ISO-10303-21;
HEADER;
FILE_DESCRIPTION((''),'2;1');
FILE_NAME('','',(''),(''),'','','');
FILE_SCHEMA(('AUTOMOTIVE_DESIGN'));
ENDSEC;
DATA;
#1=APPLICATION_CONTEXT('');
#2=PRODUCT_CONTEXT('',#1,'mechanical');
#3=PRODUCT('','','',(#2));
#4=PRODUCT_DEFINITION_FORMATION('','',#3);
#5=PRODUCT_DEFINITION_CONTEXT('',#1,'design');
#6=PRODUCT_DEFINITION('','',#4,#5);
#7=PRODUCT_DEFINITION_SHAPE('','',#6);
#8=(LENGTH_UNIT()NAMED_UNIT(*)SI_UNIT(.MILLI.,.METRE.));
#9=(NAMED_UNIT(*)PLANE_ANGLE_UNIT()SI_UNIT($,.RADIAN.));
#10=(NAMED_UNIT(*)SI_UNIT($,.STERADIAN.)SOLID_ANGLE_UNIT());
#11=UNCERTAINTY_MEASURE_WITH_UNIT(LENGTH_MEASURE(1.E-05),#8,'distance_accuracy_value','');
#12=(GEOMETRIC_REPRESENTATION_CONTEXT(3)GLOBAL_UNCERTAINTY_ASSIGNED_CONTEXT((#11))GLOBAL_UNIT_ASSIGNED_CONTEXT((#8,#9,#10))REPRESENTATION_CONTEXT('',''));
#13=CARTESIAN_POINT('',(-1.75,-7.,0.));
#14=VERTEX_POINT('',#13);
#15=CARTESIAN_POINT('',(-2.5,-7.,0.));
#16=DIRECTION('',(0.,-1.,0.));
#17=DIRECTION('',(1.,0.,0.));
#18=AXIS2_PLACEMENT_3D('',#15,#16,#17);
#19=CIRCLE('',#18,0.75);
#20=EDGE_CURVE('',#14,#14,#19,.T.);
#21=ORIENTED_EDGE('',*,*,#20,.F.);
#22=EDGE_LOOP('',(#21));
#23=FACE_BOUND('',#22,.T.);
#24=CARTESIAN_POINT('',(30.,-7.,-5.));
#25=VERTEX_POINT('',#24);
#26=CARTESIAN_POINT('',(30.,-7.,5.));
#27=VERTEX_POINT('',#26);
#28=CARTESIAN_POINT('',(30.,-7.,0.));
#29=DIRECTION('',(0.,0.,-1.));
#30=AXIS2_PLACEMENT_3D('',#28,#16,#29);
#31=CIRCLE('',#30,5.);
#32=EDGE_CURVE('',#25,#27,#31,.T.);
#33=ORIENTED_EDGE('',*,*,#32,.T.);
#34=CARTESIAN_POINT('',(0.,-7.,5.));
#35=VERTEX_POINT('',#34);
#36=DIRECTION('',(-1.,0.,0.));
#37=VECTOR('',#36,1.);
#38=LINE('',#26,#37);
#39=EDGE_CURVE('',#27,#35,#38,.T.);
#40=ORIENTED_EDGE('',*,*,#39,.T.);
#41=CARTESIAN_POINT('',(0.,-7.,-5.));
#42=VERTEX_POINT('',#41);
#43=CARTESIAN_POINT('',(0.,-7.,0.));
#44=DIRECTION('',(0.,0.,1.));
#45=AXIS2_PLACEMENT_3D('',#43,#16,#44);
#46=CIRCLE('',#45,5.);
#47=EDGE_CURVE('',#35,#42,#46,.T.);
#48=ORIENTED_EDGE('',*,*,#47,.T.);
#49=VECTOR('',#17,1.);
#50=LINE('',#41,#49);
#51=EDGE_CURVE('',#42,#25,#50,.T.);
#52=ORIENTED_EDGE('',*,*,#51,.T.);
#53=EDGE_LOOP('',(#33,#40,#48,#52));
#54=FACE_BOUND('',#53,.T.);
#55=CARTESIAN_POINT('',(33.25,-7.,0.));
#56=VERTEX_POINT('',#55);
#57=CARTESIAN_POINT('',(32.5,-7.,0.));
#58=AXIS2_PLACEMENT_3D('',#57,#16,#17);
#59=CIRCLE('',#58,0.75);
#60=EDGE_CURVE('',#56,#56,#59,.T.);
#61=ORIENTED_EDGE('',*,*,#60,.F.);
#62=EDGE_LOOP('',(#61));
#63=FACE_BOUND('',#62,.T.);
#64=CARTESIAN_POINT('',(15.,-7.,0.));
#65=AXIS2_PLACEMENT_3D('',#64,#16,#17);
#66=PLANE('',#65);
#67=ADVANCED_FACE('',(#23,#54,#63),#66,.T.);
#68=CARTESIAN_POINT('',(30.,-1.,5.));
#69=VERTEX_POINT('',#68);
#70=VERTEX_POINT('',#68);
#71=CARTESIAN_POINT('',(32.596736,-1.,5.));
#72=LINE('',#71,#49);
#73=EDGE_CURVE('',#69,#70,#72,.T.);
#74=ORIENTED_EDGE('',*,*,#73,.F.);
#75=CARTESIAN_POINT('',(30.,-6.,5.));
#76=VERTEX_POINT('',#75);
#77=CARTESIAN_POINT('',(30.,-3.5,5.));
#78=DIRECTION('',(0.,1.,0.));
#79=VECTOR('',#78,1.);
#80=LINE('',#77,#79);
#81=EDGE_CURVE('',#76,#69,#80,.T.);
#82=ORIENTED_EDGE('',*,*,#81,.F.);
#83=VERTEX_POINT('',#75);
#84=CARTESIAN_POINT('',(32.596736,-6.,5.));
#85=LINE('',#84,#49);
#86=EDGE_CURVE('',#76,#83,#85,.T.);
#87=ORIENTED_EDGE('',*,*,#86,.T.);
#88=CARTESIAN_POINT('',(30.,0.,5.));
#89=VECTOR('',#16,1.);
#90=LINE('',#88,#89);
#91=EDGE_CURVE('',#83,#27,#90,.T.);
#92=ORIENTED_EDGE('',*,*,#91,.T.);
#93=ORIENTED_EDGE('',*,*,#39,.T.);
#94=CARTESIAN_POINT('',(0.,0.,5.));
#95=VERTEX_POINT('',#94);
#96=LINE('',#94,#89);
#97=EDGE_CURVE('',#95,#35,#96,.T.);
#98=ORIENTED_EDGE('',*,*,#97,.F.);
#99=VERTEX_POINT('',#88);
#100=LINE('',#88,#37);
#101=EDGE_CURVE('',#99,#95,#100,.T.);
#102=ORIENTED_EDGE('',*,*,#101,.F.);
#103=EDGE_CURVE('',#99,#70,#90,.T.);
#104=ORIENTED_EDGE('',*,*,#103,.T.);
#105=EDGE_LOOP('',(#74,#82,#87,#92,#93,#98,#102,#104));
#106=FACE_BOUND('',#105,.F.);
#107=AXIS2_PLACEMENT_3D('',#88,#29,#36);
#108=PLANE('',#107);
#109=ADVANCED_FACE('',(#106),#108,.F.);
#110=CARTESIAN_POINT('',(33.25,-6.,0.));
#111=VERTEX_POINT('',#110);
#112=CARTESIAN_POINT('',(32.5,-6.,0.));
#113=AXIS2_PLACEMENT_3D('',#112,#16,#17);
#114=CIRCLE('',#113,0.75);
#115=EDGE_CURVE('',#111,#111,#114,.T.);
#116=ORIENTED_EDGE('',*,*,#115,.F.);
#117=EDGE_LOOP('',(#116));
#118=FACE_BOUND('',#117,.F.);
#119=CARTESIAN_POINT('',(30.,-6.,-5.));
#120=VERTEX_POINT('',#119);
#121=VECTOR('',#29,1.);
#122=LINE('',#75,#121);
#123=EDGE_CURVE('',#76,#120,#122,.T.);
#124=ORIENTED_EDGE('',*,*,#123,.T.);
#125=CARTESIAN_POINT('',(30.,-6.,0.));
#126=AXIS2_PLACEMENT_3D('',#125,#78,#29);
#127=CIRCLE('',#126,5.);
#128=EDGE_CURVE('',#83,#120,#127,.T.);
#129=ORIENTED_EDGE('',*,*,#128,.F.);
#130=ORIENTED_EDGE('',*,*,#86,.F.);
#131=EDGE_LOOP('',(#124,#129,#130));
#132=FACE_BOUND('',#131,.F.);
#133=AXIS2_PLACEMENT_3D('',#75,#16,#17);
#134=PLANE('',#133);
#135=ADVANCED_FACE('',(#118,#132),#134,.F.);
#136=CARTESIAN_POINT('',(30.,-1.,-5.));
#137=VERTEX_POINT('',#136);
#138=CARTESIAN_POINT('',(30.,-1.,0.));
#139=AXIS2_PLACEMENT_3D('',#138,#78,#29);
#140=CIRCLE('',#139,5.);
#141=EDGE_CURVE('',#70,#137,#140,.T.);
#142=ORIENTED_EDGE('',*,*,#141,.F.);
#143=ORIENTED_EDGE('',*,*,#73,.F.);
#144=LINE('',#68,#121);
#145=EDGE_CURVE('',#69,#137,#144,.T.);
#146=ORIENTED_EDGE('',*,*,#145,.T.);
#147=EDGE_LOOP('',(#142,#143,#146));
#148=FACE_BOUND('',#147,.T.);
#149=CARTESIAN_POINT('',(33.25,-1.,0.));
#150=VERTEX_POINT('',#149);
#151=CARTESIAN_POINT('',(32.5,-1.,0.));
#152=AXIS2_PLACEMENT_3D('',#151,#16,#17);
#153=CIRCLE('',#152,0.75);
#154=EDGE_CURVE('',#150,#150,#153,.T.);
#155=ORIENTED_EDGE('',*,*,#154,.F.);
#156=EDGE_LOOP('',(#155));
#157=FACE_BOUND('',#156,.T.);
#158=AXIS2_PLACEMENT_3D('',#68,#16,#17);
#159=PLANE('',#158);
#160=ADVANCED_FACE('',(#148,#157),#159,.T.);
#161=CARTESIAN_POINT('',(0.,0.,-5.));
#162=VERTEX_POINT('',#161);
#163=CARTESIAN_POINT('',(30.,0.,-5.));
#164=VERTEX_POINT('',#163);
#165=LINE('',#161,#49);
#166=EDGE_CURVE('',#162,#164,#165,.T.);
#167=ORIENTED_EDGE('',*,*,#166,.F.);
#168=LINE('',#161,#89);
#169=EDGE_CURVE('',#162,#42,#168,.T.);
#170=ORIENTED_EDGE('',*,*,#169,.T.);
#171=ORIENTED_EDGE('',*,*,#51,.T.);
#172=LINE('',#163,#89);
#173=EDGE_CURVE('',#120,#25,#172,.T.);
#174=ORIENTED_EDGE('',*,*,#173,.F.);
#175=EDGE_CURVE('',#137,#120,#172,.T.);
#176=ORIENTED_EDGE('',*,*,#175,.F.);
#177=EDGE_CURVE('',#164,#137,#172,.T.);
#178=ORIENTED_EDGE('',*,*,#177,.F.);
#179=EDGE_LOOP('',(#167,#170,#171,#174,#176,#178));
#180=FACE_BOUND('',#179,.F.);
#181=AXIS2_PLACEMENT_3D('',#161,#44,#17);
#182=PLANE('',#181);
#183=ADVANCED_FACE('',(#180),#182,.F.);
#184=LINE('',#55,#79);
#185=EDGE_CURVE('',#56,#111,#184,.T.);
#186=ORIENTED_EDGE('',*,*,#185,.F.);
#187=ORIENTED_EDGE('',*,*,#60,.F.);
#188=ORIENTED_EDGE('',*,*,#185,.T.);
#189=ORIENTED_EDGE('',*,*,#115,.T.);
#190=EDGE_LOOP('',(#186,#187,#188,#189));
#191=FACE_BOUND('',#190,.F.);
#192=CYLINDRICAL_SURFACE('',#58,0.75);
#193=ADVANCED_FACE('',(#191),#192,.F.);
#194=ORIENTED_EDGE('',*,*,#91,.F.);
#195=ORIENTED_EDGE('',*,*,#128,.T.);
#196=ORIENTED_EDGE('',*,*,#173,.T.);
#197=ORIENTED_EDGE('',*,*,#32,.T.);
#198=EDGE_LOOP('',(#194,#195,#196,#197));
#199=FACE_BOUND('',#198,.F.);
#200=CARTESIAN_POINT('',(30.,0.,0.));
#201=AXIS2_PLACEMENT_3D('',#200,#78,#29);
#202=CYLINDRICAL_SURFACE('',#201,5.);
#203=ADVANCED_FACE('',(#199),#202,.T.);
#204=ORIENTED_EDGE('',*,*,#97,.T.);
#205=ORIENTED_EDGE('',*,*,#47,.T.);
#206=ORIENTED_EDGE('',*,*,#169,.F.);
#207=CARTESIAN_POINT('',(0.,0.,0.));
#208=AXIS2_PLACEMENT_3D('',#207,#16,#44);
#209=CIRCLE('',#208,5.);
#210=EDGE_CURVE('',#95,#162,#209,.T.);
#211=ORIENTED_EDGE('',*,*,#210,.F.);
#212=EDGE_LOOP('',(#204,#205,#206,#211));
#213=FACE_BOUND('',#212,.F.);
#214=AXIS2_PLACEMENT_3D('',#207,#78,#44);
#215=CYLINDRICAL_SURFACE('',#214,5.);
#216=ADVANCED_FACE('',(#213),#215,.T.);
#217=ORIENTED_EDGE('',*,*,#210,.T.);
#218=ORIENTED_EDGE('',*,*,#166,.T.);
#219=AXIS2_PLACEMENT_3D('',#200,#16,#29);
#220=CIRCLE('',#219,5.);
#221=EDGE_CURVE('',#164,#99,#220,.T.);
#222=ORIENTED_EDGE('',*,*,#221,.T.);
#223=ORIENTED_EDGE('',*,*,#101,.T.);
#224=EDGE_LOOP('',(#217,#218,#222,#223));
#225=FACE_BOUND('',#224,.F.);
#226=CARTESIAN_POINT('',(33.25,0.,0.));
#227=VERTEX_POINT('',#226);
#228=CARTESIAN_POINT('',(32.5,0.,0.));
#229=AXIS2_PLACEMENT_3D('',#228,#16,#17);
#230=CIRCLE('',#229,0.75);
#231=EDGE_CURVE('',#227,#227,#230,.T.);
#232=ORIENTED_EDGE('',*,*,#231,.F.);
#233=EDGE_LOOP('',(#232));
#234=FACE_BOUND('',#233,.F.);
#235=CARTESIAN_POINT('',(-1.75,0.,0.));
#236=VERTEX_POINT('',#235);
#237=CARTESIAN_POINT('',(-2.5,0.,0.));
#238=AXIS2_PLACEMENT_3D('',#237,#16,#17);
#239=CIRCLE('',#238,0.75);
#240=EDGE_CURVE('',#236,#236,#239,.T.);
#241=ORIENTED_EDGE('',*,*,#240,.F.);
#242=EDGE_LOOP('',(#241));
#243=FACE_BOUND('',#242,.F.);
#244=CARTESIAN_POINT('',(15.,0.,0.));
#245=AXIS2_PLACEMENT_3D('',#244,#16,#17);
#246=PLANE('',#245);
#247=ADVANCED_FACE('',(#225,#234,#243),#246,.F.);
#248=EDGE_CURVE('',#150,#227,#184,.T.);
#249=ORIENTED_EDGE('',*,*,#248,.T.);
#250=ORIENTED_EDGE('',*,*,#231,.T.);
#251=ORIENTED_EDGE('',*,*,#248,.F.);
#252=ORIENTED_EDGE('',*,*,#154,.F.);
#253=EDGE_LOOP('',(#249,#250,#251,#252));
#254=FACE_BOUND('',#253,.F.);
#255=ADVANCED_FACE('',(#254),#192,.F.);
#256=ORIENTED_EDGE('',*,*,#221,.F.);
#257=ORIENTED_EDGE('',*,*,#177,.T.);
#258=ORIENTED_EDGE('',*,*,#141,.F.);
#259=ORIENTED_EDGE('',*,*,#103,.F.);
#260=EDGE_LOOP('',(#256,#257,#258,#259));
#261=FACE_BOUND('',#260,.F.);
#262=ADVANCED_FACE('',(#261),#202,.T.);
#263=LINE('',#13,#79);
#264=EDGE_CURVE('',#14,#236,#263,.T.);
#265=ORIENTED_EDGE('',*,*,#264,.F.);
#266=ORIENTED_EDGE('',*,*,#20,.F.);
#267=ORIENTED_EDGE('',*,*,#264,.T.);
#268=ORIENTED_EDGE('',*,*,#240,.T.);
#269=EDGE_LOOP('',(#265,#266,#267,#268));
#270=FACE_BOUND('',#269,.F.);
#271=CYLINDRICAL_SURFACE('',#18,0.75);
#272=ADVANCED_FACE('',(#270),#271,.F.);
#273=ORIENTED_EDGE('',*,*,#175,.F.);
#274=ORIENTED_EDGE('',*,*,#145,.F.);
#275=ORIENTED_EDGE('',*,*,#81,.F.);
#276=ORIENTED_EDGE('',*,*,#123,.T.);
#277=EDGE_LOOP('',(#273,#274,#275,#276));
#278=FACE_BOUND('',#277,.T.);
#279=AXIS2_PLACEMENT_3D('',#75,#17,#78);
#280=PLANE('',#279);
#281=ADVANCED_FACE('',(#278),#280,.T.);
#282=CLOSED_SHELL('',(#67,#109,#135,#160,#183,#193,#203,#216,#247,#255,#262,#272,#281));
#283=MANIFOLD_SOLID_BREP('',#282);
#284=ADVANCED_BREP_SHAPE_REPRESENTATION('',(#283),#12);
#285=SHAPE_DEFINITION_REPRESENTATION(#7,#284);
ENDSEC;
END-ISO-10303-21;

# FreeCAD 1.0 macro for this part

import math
import FreeCAD as App
import Part
import Sketcher
Q = App.Units.Quantity

doc = App.newDocument("Part")
body = doc.addObject("PartDesign::Body", "Body")

# Sketch on XZ plane
sketch1 = body.newObject("Sketcher::SketchObject", "Sketch")
sketch1.AttachmentSupport = (doc.getObject("XZ_Plane"), [""])
sketch1.MapMode = "FlatFace"
sketch1.addGeometry(Part.LineSegment(App.Vector(30, 5, 0), App.Vector(0, 5, 0)), False)
sketch1.addGeometry(Part.ArcOfCircle(Part.Circle(App.Vector(0, 0, 0), App.Vector(0, 0, 1), 5), math.radians(90), math.radians(270)), False)
sketch1.addGeometry(Part.LineSegment(App.Vector(0, -5, 0), App.Vector(30, -5, 0)), False)
sketch1.addGeometry(Part.ArcOfCircle(Part.Circle(App.Vector(30, 0, 0), App.Vector(0, 0, 1), 5), math.radians(-90), math.radians(90)), False)
sketch1.addConstraint(Sketcher.Constraint("Tangent", 0, 2, 1, 1))
sketch1.addConstraint(Sketcher.Constraint("Tangent", 1, 2, 2, 1))
sketch1.addConstraint(Sketcher.Constraint("Tangent", 2, 2, 3, 1))
sketch1.addConstraint(Sketcher.Constraint("Tangent", 3, 2, 0, 1))
sketch1.addConstraint(Sketcher.Constraint("Horizontal", 0))
sketch1.addConstraint(Sketcher.Constraint("Horizontal", 2))
sketch1.addConstraint(Sketcher.Constraint("Coincident", 1, 3, -1, 1))
sketch1.addConstraint(Sketcher.Constraint("Radius", 1, Q("5 mm")))
sketch1.addConstraint(Sketcher.Constraint("DistanceX", 0, 2, 0, 1, Q("30 mm")))
pad1 = body.newObject("PartDesign::Pad", "Pad")
pad1.Profile = sketch1
pad1.Length = 7

# Sketch on XY plane
sketch2 = body.newObject("Sketcher::SketchObject", "Sketch001")
sketch2.AttachmentSupport = (doc.getObject("XY_Plane"), [""])
sketch2.MapMode = "FlatFace"
sketch2.AttachmentOffset = App.Placement(App.Vector(0, 0, 5), App.Rotation())
sketch2.addGeometry(Part.LineSegment(App.Vector(30, -1, 0), App.Vector(30, -6, 0)), False)
sketch2.addGeometry(Part.LineSegment(App.Vector(30, -6, 0), App.Vector(35, -6, 0)), False)
sketch2.addGeometry(Part.LineSegment(App.Vector(35, -6, 0), App.Vector(35, -1, 0)), False)
sketch2.addGeometry(Part.LineSegment(App.Vector(35, -1, 0), App.Vector(30, -1, 0)), False)
sketch2.addConstraint(Sketcher.Constraint("Coincident", 0, 2, 1, 1))
sketch2.addConstraint(Sketcher.Constraint("Coincident", 1, 2, 2, 1))
sketch2.addConstraint(Sketcher.Constraint("Coincident", 2, 2, 3, 1))
sketch2.addConstraint(Sketcher.Constraint("Coincident", 3, 2, 0, 1))
sketch2.addConstraint(Sketcher.Constraint("Vertical", 0))
sketch2.addConstraint(Sketcher.Constraint("Horizontal", 1))
sketch2.addConstraint(Sketcher.Constraint("Vertical", 2))
sketch2.addConstraint(Sketcher.Constraint("Horizontal", 3))
sketch2.addConstraint(Sketcher.Constraint("DistanceY", 0, 2, 0, 1, Q("5 mm")))
sketch2.addConstraint(Sketcher.Constraint("DistanceX", -1, 1, 0, 2, Q("30 mm")))
sketch2.addConstraint(Sketcher.Constraint("DistanceY", 0, 2, -1, 1, Q("6 mm")))
sketch2.addConstraint(Sketcher.Constraint("DistanceX", 1, 1, 1, 2, Q("5.193473 mm")))
pocket1 = body.newObject("PartDesign::Pocket", "Pocket")
pocket1.Profile = sketch2
pocket1.Length = 25

# Sketch on XZ plane
sketch3 = body.newObject("Sketcher::SketchObject", "Sketch002")
sketch3.AttachmentSupport = (doc.getObject("XZ_Plane"), [""])
sketch3.MapMode = "FlatFace"
sketch3.AttachmentOffset = App.Placement(App.Vector(0, 0, 7), App.Rotation())
sketch3.addGeometry(Part.Circle(App.Vector(32.5, 0, 0), App.Vector(0, 0, 1), 0.8), False)
sketch3.addGeometry(Part.Circle(App.Vector(-2.5, 0, 0), App.Vector(0, 0, 1), 0.8), False)
sketch3.addConstraint(Sketcher.Constraint("Equal", 0, 1))
sketch3.addConstraint(Sketcher.Constraint("PointOnObject", 0, 3, -1))
sketch3.addConstraint(Sketcher.Constraint("PointOnObject", 1, 3, -1))
sketch3.addConstraint(Sketcher.Constraint("Diameter", 0, Q("1.5 mm")))
sketch3.addConstraint(Sketcher.Constraint("DistanceX", 1, 3, 0, 3, Q("35 mm")))
sketch3.addConstraint(Sketcher.Constraint("DistanceX", -1, 1, 0, 3, Q("32.5 mm")))
pocket2 = body.newObject("PartDesign::Pocket", "Pocket001")
pocket2.Profile = sketch3
pocket2.Length = 25

doc.recompute()
